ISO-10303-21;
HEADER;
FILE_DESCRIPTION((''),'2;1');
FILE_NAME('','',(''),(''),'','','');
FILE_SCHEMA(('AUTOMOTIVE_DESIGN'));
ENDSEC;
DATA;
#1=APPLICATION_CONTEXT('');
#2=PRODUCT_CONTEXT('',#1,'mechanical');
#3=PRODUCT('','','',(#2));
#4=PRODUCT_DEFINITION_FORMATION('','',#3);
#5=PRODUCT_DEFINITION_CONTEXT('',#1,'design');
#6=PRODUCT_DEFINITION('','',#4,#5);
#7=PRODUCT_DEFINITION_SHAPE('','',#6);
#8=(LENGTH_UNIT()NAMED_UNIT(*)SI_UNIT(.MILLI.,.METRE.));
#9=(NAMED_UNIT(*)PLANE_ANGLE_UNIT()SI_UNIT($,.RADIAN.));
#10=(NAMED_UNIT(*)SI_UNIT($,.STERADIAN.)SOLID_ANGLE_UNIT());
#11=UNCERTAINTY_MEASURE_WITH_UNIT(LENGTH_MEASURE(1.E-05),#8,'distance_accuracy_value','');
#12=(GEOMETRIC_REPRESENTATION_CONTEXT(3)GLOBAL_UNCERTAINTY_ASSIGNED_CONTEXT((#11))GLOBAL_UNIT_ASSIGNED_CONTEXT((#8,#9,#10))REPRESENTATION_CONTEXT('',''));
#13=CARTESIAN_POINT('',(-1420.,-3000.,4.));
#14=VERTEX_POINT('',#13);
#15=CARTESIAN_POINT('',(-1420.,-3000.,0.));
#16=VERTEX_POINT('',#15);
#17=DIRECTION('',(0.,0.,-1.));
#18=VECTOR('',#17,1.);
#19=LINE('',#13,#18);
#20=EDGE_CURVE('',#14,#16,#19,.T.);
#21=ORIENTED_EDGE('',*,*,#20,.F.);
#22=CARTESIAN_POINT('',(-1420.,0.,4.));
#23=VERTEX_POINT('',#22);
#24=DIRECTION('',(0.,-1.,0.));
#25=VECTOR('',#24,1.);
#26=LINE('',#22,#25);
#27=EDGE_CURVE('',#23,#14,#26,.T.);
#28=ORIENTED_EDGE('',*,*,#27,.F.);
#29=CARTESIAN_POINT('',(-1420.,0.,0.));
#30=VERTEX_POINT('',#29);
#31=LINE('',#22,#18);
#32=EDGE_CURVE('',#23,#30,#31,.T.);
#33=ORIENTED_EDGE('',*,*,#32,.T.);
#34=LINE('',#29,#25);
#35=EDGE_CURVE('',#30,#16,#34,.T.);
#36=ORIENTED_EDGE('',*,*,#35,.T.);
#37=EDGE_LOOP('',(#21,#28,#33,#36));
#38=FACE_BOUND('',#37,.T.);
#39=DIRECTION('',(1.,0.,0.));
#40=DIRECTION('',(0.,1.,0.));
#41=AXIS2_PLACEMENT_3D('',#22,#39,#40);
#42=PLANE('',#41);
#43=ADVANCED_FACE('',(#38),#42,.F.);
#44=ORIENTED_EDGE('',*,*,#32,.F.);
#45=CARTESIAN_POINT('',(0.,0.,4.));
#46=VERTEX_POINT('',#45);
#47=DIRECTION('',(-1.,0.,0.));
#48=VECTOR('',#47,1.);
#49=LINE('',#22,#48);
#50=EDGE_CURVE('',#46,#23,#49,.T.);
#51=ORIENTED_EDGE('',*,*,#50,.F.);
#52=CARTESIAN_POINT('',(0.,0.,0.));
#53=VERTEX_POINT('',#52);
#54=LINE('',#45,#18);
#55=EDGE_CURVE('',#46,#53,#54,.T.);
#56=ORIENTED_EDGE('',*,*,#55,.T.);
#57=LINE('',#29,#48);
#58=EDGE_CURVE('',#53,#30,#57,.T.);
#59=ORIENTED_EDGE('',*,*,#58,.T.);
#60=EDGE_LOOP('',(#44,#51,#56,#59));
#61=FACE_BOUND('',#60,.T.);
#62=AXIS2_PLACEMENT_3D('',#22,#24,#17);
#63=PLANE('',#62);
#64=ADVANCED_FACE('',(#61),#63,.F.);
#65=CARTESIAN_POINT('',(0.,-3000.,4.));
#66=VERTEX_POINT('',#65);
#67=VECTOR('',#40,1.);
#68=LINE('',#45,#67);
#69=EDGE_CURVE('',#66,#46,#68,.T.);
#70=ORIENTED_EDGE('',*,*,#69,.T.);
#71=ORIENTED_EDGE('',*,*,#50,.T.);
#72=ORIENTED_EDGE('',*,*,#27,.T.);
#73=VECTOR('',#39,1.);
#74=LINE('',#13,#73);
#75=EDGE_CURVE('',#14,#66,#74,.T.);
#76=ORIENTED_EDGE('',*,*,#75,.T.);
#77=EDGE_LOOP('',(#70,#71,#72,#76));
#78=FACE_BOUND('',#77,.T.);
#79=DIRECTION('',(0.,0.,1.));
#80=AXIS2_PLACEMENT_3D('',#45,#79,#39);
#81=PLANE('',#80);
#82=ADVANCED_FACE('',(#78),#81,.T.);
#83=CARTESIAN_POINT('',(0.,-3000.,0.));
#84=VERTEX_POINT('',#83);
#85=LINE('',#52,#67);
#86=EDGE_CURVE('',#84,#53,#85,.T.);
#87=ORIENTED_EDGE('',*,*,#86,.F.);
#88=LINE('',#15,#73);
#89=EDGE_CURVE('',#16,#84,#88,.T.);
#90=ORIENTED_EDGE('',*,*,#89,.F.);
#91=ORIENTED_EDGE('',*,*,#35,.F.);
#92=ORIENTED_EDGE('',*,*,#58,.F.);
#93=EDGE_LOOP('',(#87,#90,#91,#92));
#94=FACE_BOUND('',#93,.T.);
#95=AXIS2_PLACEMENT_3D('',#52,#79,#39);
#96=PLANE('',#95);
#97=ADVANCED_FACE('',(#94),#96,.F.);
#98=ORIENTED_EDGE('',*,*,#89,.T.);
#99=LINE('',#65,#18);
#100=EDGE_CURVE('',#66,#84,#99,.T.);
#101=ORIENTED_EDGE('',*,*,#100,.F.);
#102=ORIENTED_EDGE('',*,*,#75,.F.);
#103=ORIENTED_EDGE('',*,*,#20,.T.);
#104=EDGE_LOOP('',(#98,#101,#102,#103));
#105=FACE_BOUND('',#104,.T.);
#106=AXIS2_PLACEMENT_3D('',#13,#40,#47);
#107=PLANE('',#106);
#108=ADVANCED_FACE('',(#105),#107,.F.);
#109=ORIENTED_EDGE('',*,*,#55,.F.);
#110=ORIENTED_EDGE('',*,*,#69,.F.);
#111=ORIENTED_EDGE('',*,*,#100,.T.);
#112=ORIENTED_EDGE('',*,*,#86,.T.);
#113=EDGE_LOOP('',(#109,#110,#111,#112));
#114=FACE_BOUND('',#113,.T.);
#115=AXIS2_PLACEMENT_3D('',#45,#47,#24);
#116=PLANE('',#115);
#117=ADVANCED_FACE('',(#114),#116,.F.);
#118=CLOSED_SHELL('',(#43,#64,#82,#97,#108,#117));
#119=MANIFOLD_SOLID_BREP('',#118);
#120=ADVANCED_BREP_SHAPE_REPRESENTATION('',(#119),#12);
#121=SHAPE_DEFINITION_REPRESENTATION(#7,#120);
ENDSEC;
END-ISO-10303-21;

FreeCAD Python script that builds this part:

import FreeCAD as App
import Part
import Sketcher


def add_polygon(sketch, points):
    """Adds a closed chain of lines whose ends are joined by coincident constraints."""
    first, n = sketch.GeometryCount, len(points)
    for a, b in zip(points, points[1:] + points[:1]):
        sketch.addGeometry(Part.LineSegment(App.Vector(*a, 0), App.Vector(*b, 0)), False)
    for i in range(n):
        sketch.addConstraint(Sketcher.Constraint("Coincident", first + i, 2, first + (i + 1) % n, 1))

doc = App.newDocument("Part")
body = doc.addObject("PartDesign::Body", "Body")

# Sketch on XY plane
sketch1 = body.newObject("Sketcher::SketchObject", "Sketch")
sketch1.AttachmentSupport = (doc.getObject("XY_Plane"), [""])
sketch1.MapMode = "FlatFace"
add_polygon(sketch1, [(-1420, 0), (-1420, -3000), (0, -3000), (0, 0)])  # lines 0-3
sketch1.addConstraint(Sketcher.Constraint("Vertical", 0))
sketch1.addConstraint(Sketcher.Constraint("Horizontal", 1))
sketch1.addConstraint(Sketcher.Constraint("Vertical", 2))
sketch1.addConstraint(Sketcher.Constraint("Horizontal", 3))
sketch1.addConstraint(Sketcher.Constraint("Coincident", 2, 2, -1, 1))
sketch1.addConstraint(Sketcher.Constraint("DistanceX", 1, 1, 1, 2, 1420.0))
sketch1.addConstraint(Sketcher.Constraint("DistanceY", 0, 2, 0, 1, 3000.0))
pad1 = body.newObject("PartDesign::Pad", "Pad")
pad1.Profile = sketch1
pad1.Length = 4

doc.recompute()
